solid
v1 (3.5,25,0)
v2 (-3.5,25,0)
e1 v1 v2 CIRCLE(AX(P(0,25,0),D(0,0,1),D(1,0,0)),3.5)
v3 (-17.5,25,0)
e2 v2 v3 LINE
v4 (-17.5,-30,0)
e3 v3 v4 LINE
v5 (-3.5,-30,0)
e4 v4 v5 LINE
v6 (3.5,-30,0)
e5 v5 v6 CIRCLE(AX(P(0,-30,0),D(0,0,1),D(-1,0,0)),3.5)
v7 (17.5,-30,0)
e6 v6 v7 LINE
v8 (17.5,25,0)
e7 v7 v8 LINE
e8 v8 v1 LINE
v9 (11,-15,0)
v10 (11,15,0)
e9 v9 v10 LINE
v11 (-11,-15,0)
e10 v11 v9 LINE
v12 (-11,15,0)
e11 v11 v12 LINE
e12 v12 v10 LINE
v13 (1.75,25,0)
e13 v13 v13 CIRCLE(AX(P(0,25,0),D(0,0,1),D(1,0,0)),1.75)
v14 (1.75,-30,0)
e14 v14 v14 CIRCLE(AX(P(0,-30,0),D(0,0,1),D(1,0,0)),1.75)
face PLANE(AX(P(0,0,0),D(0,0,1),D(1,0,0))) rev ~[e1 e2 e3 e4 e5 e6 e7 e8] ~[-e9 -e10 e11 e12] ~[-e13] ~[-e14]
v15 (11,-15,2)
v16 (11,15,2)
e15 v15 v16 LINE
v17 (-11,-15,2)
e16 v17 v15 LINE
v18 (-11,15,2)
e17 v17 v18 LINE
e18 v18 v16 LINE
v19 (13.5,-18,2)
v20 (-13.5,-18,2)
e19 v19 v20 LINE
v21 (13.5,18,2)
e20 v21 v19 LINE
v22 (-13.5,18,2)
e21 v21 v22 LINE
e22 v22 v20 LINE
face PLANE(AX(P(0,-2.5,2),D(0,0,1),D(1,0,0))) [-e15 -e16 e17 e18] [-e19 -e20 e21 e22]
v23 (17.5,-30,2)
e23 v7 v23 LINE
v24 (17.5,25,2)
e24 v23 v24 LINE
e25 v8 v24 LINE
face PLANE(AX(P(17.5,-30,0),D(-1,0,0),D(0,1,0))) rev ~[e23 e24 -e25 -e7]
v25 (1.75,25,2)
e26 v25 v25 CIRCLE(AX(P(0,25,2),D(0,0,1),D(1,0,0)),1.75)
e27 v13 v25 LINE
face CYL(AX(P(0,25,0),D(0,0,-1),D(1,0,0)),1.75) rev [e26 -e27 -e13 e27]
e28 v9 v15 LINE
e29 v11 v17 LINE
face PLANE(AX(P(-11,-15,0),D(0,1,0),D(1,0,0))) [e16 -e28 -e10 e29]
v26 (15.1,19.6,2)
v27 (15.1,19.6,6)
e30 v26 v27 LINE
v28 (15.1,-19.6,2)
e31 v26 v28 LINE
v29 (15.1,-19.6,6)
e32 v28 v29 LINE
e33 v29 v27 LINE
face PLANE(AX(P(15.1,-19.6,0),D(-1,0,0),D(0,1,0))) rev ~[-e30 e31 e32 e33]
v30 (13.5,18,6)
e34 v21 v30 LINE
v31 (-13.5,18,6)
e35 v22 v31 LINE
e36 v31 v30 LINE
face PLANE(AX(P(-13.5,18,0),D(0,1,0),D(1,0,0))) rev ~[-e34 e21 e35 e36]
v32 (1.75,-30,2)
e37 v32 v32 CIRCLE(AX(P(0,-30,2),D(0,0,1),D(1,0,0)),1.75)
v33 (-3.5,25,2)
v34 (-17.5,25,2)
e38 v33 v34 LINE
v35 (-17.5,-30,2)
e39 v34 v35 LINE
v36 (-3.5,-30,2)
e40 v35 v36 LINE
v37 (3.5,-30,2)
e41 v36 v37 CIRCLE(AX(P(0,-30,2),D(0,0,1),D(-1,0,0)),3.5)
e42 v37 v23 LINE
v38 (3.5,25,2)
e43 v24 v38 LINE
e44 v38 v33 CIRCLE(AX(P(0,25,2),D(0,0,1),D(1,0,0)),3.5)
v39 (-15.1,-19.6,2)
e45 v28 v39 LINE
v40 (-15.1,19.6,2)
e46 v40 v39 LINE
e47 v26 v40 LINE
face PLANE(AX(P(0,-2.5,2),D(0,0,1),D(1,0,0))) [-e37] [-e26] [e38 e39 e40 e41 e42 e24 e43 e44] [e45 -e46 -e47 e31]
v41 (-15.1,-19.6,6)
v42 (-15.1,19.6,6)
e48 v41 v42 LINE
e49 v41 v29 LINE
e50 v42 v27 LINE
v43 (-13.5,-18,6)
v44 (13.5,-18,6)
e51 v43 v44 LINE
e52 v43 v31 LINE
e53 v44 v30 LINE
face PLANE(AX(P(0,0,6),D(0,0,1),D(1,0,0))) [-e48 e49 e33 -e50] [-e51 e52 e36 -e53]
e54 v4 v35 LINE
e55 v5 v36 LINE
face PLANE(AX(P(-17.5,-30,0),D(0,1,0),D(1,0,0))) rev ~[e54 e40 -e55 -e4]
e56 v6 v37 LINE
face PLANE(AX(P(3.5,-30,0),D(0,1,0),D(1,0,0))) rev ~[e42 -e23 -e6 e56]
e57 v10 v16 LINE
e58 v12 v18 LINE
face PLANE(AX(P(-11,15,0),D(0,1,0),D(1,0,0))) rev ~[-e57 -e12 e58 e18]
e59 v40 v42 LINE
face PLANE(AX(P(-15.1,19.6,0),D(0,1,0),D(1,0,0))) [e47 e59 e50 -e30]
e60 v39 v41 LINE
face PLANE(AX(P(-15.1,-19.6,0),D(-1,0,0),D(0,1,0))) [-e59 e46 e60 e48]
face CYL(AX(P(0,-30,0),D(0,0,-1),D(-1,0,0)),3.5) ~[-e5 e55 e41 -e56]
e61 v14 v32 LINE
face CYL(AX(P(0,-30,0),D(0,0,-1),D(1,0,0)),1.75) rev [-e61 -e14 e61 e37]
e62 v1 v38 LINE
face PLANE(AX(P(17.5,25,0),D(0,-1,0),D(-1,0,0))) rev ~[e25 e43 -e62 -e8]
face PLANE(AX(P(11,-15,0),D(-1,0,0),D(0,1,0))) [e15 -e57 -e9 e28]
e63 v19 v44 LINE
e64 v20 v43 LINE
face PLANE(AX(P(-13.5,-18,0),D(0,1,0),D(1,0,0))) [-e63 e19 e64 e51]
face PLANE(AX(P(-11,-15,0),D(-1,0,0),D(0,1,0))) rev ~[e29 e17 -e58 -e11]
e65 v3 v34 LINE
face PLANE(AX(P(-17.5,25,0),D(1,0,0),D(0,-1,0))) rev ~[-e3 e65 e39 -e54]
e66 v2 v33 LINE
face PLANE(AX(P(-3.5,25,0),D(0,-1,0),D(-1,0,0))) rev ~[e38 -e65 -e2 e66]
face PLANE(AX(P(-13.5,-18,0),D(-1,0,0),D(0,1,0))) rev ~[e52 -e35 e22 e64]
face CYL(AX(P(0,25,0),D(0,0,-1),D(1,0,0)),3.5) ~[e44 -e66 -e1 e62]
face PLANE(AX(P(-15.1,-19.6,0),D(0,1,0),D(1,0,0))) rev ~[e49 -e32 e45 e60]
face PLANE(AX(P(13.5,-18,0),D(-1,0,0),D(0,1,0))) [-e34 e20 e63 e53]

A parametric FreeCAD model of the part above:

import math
import FreeCAD as App
import Part
import Sketcher
from FreeCAD import Vector

doc = App.newDocument("Part")
body = doc.addObject("PartDesign::Body", "Body")

# Sketch on XY plane
sketch1 = doc.addObject("Sketcher::SketchObject", "Sketch")
body.addObject(sketch1)
sketch1.AttachmentSupport = (doc.XY_Plane, [""])
sketch1.MapMode = "FlatFace"
sketch1.addGeometry([
    Part.ArcOfCircle(Part.Circle(Vector(0, 25, 0), Vector(0, 0, 1), 3.5), math.radians(0), math.radians(180)),  # 0
    Part.LineSegment(Vector(-3.5, 25, 0), Vector(-17.5, 25, 0)),  # 1
    Part.LineSegment(Vector(-17.5, 25, 0), Vector(-17.5, -30, 0)),  # 2
    Part.LineSegment(Vector(-17.5, -30, 0), Vector(-3.5, -30, 0)),  # 3
    Part.ArcOfCircle(Part.Circle(Vector(0, -30, 0), Vector(0, 0, 1), 3.5), math.radians(180), math.radians(360)),  # 4
    Part.LineSegment(Vector(3.5, -30, 0), Vector(17.5, -30, 0)),  # 5
    Part.LineSegment(Vector(17.5, -30, 0), Vector(17.5, 25, 0)),  # 6
    Part.LineSegment(Vector(17.5, 25, 0), Vector(3.5, 25, 0)),  # 7
    Part.Circle(Vector(0, -30, 0), Vector(0, 0, 1), 1.8),  # 8
    Part.LineSegment(Vector(11, -15, 0), Vector(-11, -15, 0)),  # 9
    Part.LineSegment(Vector(-11, -15, 0), Vector(-11, 15, 0)),  # 10
    Part.LineSegment(Vector(-11, 15, 0), Vector(11, 15, 0)),  # 11
    Part.LineSegment(Vector(11, 15, 0), Vector(11, -15, 0)),  # 12
    Part.Circle(Vector(0, 25, 0), Vector(0, 0, 1), 1.8),  # 13
], False)
sketch1.addConstraint([
    Sketcher.Constraint("Coincident", 0, 2, 1, 1),
    Sketcher.Constraint("Coincident", 1, 2, 2, 1),
    Sketcher.Constraint("Coincident", 2, 2, 3, 1),
    Sketcher.Constraint("Coincident", 3, 2, 4, 1),
    Sketcher.Constraint("Coincident", 4, 2, 5, 1),
    Sketcher.Constraint("Coincident", 5, 2, 6, 1),
    Sketcher.Constraint("Coincident", 6, 2, 7, 1),
    Sketcher.Constraint("Coincident", 7, 2, 0, 1),
    Sketcher.Constraint("Coincident", 9, 2, 10, 1),
    Sketcher.Constraint("Coincident", 10, 2, 11, 1),
    Sketcher.Constraint("Coincident", 11, 2, 12, 1),
    Sketcher.Constraint("Coincident", 12, 2, 9, 1),
    Sketcher.Constraint("Horizontal", 1),
    Sketcher.Constraint("Vertical", 2),
    Sketcher.Constraint("Horizontal", 3),
    Sketcher.Constraint("Horizontal", 5),
    Sketcher.Constraint("Vertical", 6),
    Sketcher.Constraint("Horizontal", 7),
    Sketcher.Constraint("Horizontal", 9),
    Sketcher.Constraint("Vertical", 10),
    Sketcher.Constraint("Horizontal", 11),
    Sketcher.Constraint("Vertical", 12),
    Sketcher.Constraint("Coincident", 8, 3, 4, 3),
    Sketcher.Constraint("Coincident", 13, 3, 0, 3),
    Sketcher.Constraint("Equal", 0, 4),
    Sketcher.Constraint("Equal", 8, 13),
    Sketcher.Constraint("Symmetric", 9, 2, 11, 2, -1, 1),
    Sketcher.Constraint("Symmetric", 3, 2, 4, 2, -2),
    Sketcher.Constraint("Symmetric", 1, 2, 6, 2, -2),
    Sketcher.Constraint("PointOnObject", 0, 3, -2),
    Sketcher.Constraint("Horizontal", 13, 3, 0, 2),
    Sketcher.Constraint("Horizontal", 8, 3, 2, 2),
    Sketcher.Constraint("Diameter", 8, 3.5),
    Sketcher.Constraint("Radius", 0, 3.5),
    Sketcher.Constraint("DistanceX", 1, 2, 1, 1, 14.0),
    Sketcher.Constraint("DistanceX", 9, 2, 9, 1, 22.0),
    Sketcher.Constraint("DistanceY", 2, 2, 2, 1, 55.0),
    Sketcher.Constraint("DistanceY", 10, 1, 10, 2, 30.0),
    Sketcher.Constraint("DistanceY", -1, 1, 0, 3, 25.0),
])
pad1 = doc.addObject("PartDesign::Pad", "Pad")
body.addObject(pad1)
pad1.Profile = sketch1
pad1.Length = 2

# Sketch on XY plane
sketch2 = doc.addObject("Sketcher::SketchObject", "Sketch001")
body.addObject(sketch2)
sketch2.AttachmentSupport = (doc.XY_Plane, [""])
sketch2.MapMode = "FlatFace"
sketch2.addGeometry([
    Part.LineSegment(Vector(-15, 20, 0), Vector(-15, -20, 0)),  # 0
    Part.LineSegment(Vector(-15, -20, 0), Vector(15, -20, 0)),  # 1
    Part.LineSegment(Vector(15, -20, 0), Vector(15, 20, 0)),  # 2
    Part.LineSegment(Vector(15, 20, 0), Vector(-15, 20, 0)),  # 3
    Part.LineSegment(Vector(14, -18, 0), Vector(-14, -18, 0)),  # 4
    Part.LineSegment(Vector(-14, -18, 0), Vector(-14, 18, 0)),  # 5
    Part.LineSegment(Vector(-14, 18, 0), Vector(14, 18, 0)),  # 6
    Part.LineSegment(Vector(14, 18, 0), Vector(14, -18, 0)),  # 7
], False)
sketch2.addConstraint([
    Sketcher.Constraint("Coincident", 0, 2, 1, 1),
    Sketcher.Constraint("Coincident", 1, 2, 2, 1),
    Sketcher.Constraint("Coincident", 2, 2, 3, 1),
    Sketcher.Constraint("Coincident", 3, 2, 0, 1),
    Sketcher.Constraint("Coincident", 4, 2, 5, 1),
    Sketcher.Constraint("Coincident", 5, 2, 6, 1),
    Sketcher.Constraint("Coincident", 6, 2, 7, 1),
    Sketcher.Constraint("Coincident", 7, 2, 4, 1),
    Sketcher.Constraint("Vertical", 0),
    Sketcher.Constraint("Horizontal", 1),
    Sketcher.Constraint("Vertical", 2),
    Sketcher.Constraint("Horizontal", 3),
    Sketcher.Constraint("Horizontal", 4),
    Sketcher.Constraint("Vertical", 5),
    Sketcher.Constraint("Horizontal", 6),
    Sketcher.Constraint("Vertical", 7),
    Sketcher.Constraint("Symmetric", 0, 2, 2, 2, -1, 1),
    Sketcher.Constraint("Symmetric", 4, 2, 6, 2, -1, 1),
    Sketcher.Constraint("DistanceX", 4, 2, 4, 1, 27.0),
    Sketcher.Constraint("DistanceY", 5, 1, 5, 2, 36.0),
    Sketcher.Constraint("DistanceX", 1, 1, 1, 2, 30.2),
    Sketcher.Constraint("DistanceY", 0, 2, 0, 1, 39.2),
])
pad2 = doc.addObject("PartDesign::Pad", "Pad001")
body.addObject(pad2)
pad2.Profile = sketch2
pad2.Length = 6

doc.recompute()
